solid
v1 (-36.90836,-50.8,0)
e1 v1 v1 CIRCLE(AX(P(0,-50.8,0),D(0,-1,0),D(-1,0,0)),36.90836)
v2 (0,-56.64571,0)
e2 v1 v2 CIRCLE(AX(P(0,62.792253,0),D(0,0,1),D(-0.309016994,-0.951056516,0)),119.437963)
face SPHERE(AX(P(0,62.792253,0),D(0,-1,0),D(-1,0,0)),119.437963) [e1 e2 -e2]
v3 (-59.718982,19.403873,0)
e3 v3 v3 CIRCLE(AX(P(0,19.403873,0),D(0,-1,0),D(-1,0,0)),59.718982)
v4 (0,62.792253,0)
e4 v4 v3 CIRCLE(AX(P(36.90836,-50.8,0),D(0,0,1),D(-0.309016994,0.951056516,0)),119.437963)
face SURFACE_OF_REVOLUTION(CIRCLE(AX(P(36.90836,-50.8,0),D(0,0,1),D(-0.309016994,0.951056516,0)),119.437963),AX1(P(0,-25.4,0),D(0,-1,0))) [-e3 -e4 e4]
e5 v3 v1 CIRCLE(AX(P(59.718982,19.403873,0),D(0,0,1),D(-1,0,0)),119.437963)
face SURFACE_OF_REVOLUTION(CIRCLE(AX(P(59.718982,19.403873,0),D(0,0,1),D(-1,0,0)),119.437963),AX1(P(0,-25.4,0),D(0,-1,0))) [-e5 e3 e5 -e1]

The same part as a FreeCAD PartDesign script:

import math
import FreeCAD as App
import Part
import Sketcher
Q = App.Units.Quantity

doc = App.newDocument("Part")
params = doc.addObject("Spreadsheet::Sheet", "Params")
for row, (alias, value) in enumerate([
    ("revolution_angle", "360 deg"),
], start=1):
    params.set(f"A{row}", alias)
    params.set(f"B{row}", "=" + value)
    params.setAlias(f"B{row}", alias)

body = doc.addObject("PartDesign::Body", "Body")

# Sketch on XY plane
sketch1 = doc.addObject("Sketcher::SketchObject", "Sketch")
body.addObject(sketch1)
sketch1.AttachmentSupport = (doc.XY_Plane, [""])
sketch1.MapMode = "FlatFace"
sketch1.addGeometry([
    Part.ArcOfCircle(Part.Circle(App.Vector(37, -51, 0), App.Vector(0, 0, 1), 119), math.radians(108), math.radians(144)),
    Part.ArcOfCircle(Part.Circle(App.Vector(60, 19, 0), App.Vector(0, 0, 1), 119), math.radians(180), math.radians(216)),
    Part.ArcOfCircle(Part.Circle(App.Vector(0, 63, 0), App.Vector(0, 0, 1), 119), math.radians(-108), math.radians(-90)),
    Part.LineSegment(App.Vector(0, -57, 0), App.Vector(0, 63, 0)),
], False)
sketch1.addConstraint([
    Sketcher.Constraint("Coincident", 0, 2, 1, 1),
    Sketcher.Constraint("Coincident", 1, 2, 2, 1),
    Sketcher.Constraint("Coincident", 2, 2, 3, 1),
    Sketcher.Constraint("Coincident", 3, 2, 0, 1),
    Sketcher.Constraint("Vertical", 3),
    Sketcher.Constraint("Coincident", 3, 2, 2, 3),
    Sketcher.Constraint("Equal", 0, 1),
    Sketcher.Constraint("Equal", 1, 2),
    Sketcher.Constraint("PointOnObject", 2, 3, -2),
    Sketcher.Constraint("Horizontal", 1, 3, 0, 2),
    Sketcher.Constraint("Horizontal", 0, 3, 1, 2),
    Sketcher.Constraint("DistanceY", 0, 3, -1, 1, Q("50.8 mm")),
    Sketcher.Constraint("Radius", 0, Q("119.437963 mm")),
    Sketcher.Constraint("DistanceX", -1, 1, 0, 3, Q("36.90836 mm")),
])
revolution = doc.addObject("PartDesign::Revolution", "Revolution")
body.addObject(revolution)
revolution.Profile = sketch1
revolution.ReferenceAxis = (sketch1, ["V_Axis"])
revolution.setExpression("Angle", "Params.revolution_angle")

doc.recompute()
